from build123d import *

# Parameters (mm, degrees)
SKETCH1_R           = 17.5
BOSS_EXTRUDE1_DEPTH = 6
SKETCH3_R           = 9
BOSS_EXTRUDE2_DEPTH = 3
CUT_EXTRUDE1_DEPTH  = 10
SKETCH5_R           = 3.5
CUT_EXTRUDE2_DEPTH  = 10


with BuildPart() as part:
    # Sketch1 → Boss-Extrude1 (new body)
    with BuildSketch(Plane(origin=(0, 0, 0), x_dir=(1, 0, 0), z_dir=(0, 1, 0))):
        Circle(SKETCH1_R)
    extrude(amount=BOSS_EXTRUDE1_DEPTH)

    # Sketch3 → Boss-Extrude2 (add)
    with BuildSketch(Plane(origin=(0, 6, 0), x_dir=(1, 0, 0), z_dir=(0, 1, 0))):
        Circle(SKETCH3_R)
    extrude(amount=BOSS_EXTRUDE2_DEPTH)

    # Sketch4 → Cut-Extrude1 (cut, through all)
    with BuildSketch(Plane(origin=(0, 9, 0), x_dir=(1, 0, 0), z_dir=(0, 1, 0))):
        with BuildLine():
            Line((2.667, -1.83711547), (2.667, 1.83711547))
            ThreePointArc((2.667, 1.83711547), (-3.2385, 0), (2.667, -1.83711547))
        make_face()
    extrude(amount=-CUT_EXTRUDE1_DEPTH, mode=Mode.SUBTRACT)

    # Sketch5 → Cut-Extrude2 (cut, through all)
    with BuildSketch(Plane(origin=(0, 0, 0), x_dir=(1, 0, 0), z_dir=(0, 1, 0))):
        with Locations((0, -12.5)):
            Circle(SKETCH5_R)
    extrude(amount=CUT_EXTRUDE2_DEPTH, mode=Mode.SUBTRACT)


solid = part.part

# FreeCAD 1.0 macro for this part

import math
import FreeCAD as App
import Part
import Sketcher
from FreeCAD import Vector

doc = App.newDocument("Part")
body = doc.addObject("PartDesign::Body", "Body")

sketch1 = body.newObject("Sketcher::SketchObject", "Sketch")
sketch1.AttachmentSupport = (doc.getObject("XZ_Plane"), [""])
sketch1.MapMode = "FlatFace"
sketch1.addGeometry(Part.Circle(Vector(0, 0, 0), Vector(0, 0, 1), 18), False)
sketch1.addConstraint([
    Sketcher.Constraint("Coincident", 0, 3, -1, 1),
    Sketcher.Constraint("Diameter", 0, 35.0),
])
pad1 = body.newObject("PartDesign::Pad", "Pad")
pad1.Profile = sketch1
pad1.Length = 6
pad1.Reversed = True

sketch2 = body.newObject("Sketcher::SketchObject", "Sketch001")
sketch2.AttachmentSupport = (doc.getObject("XZ_Plane"), [""])
sketch2.MapMode = "FlatFace"
sketch2.AttachmentOffset = App.Placement(Vector(0, 0, -6), App.Rotation())
sketch2.addGeometry(Part.Circle(Vector(0, 0, 0), Vector(0, 0, 1), 9), False)
sketch2.addConstraint([
    Sketcher.Constraint("Coincident", 0, 3, -1, 1),
    Sketcher.Constraint("Diameter", 0, 18.0),
])
pad2 = body.newObject("PartDesign::Pad", "Pad001")
pad2.Profile = sketch2
pad2.Length = 3
pad2.Reversed = True

sketch3 = body.newObject("Sketcher::SketchObject", "Sketch002")
sketch3.AttachmentSupport = (doc.getObject("XZ_Plane"), [""])
sketch3.MapMode = "FlatFace"
sketch3.AttachmentOffset = App.Placement(Vector(0, 0, -9), App.Rotation())
sketch3.addGeometry([
    Part.LineSegment(Vector(2.7, 1.8, 0), Vector(2.7, -1.8, 0)),
    Part.ArcOfCircle(Part.Circle(Vector(0, 0, 0), Vector(0, 0, 1), 3.2), math.radians(35), math.radians(325)),
], False)
sketch3.addConstraint([
    Sketcher.Constraint("Coincident", 0, 1, 1, 1),
    Sketcher.Constraint("Coincident", 1, 2, 0, 2),
    Sketcher.Constraint("Vertical", 0),
    Sketcher.Constraint("Coincident", 1, 3, -1, 1),
    Sketcher.Constraint("Radius", 1, 3.2385),
    Sketcher.Constraint("DistanceX", -1, 1, 0, 1, 2.667),
])
pocket1 = body.newObject("PartDesign::Pocket", "Pocket")
pocket1.Profile = sketch3
pocket1.Type = "ThroughAll"
pocket1.Reversed = True

sketch4 = body.newObject("Sketcher::SketchObject", "Sketch003")
sketch4.AttachmentSupport = (doc.getObject("XZ_Plane"), [""])
sketch4.MapMode = "FlatFace"
sketch4.addGeometry(Part.Circle(Vector(0, 12.5, 0), Vector(0, 0, 1), 3.5), False)
sketch4.addConstraint([
    Sketcher.Constraint("PointOnObject", 0, 3, -2),
    Sketcher.Constraint("Diameter", 0, 7.0),
    Sketcher.Constraint("DistanceY", -1, 1, 0, 3, 12.5),
])
pocket2 = body.newObject("PartDesign::Pocket", "Pocket001")
pocket2.Profile = sketch4
pocket2.Type = "ThroughAll"

doc.recompute()
